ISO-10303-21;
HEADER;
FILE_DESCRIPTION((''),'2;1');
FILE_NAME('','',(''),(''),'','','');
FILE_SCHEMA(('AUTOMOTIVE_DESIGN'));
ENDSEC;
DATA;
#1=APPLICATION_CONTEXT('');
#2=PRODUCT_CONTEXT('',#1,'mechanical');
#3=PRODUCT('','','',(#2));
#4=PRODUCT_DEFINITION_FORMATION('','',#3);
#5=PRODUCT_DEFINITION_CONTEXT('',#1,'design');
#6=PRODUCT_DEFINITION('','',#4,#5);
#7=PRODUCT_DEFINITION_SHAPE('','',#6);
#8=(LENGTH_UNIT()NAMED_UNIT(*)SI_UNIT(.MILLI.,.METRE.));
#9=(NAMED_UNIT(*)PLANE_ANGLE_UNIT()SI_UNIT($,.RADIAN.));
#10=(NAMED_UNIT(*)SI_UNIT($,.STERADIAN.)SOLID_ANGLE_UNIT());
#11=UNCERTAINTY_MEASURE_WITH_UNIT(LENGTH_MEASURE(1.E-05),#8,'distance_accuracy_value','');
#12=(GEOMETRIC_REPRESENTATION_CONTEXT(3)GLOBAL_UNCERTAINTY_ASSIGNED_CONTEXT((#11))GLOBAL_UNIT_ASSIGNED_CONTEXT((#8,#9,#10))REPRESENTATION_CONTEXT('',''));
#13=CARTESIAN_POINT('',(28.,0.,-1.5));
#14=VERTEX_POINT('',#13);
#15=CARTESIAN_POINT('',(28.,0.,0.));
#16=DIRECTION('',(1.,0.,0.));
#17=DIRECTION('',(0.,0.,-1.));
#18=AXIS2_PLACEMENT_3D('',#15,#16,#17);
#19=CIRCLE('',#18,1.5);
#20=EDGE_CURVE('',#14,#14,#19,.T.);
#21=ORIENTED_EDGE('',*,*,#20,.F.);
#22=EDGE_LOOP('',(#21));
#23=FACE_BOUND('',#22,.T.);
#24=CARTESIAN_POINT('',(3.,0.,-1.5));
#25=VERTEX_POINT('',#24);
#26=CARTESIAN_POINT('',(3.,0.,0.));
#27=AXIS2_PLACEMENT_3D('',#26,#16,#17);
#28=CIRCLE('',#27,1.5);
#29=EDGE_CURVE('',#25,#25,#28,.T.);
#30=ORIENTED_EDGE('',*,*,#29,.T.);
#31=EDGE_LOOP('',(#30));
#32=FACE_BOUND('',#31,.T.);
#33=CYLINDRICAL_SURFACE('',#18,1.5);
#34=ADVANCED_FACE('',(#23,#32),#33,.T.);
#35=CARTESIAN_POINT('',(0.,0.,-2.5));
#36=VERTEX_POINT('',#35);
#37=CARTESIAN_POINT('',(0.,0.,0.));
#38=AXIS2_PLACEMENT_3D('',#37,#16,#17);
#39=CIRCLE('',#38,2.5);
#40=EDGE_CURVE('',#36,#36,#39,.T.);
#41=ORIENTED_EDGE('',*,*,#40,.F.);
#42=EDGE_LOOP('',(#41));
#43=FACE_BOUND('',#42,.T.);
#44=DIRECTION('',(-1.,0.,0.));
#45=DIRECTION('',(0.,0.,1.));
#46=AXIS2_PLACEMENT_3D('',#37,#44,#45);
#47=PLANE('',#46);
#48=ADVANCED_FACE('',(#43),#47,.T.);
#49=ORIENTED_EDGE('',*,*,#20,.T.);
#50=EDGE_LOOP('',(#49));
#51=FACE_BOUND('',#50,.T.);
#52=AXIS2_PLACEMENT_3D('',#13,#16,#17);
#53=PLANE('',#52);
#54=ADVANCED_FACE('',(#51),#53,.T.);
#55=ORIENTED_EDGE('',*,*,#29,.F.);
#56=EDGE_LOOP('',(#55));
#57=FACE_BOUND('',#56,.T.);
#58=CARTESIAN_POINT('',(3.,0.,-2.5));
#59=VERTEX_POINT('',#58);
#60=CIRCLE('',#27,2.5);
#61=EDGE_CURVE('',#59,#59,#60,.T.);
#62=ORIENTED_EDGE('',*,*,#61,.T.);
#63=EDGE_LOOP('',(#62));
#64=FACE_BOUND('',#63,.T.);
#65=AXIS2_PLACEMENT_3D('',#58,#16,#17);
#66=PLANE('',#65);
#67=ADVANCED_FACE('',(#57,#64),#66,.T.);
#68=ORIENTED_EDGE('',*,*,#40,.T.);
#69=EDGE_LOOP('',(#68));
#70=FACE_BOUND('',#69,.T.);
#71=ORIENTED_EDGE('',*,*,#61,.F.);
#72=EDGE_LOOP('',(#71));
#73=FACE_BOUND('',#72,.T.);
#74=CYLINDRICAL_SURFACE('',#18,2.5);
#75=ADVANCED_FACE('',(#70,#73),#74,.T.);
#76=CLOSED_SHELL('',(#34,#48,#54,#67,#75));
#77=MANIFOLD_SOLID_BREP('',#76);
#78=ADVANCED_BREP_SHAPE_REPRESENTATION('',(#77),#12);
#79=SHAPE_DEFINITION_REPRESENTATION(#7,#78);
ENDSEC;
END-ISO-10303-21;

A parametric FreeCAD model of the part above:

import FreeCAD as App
import Part
import Sketcher

V = App.Vector
Q = App.Units.Quantity


def add_polygon(sketch, points):
    """Adds a closed chain of lines whose ends are joined by coincident constraints."""
    first, n = sketch.GeometryCount, len(points)
    for a, b in zip(points, points[1:] + points[:1]):
        sketch.addGeometry(Part.LineSegment(App.Vector(*a, 0), App.Vector(*b, 0)), False)
    for i in range(n):
        sketch.addConstraint(Sketcher.Constraint("Coincident", first + i, 2, first + (i + 1) % n, 1))

doc = App.newDocument("Part")
body = doc.addObject("PartDesign::Body", "Body")

# Sketch on XZ plane
sketch1 = doc.addObject("Sketcher::SketchObject", "Sketch")
body.addObject(sketch1)
sketch1.AttachmentSupport = (doc.XZ_Plane, [""])
sketch1.MapMode = "FlatFace"
add_polygon(sketch1, [(0, -2.5), (0, 0), (28, 0), (28, -1.5), (3, -1.5), (3, -2.5)])  # lines 0-5
sketch1.addConstraint(Sketcher.Constraint("Vertical", 0))
sketch1.addConstraint(Sketcher.Constraint("Horizontal", 1))
sketch1.addConstraint(Sketcher.Constraint("Vertical", 2))
sketch1.addConstraint(Sketcher.Constraint("Horizontal", 3))
sketch1.addConstraint(Sketcher.Constraint("Vertical", 4))
sketch1.addConstraint(Sketcher.Constraint("Horizontal", 5))
sketch1.addConstraint(Sketcher.Constraint("Coincident", 0, 2, -1, 1))
sketch1.addConstraint(Sketcher.Constraint("DistanceX", 1, 1, 1, 2, Q("28 mm")))
sketch1.addConstraint(Sketcher.Constraint("DistanceX", 3, 2, 3, 1, Q("25 mm")))
sketch1.addConstraint(Sketcher.Constraint("DistanceY", 4, 2, 4, 1, Q("1 mm")))
sketch1.addConstraint(Sketcher.Constraint("DistanceY", 0, 1, 0, 2, Q("2.5 mm")))
revolution = doc.addObject("PartDesign::Revolution", "Revolution")
body.addObject(revolution)
revolution.Profile = sketch1
revolution.ReferenceAxis = (sketch1, ["H_Axis"])
revolution.Angle = 360

doc.recompute()
